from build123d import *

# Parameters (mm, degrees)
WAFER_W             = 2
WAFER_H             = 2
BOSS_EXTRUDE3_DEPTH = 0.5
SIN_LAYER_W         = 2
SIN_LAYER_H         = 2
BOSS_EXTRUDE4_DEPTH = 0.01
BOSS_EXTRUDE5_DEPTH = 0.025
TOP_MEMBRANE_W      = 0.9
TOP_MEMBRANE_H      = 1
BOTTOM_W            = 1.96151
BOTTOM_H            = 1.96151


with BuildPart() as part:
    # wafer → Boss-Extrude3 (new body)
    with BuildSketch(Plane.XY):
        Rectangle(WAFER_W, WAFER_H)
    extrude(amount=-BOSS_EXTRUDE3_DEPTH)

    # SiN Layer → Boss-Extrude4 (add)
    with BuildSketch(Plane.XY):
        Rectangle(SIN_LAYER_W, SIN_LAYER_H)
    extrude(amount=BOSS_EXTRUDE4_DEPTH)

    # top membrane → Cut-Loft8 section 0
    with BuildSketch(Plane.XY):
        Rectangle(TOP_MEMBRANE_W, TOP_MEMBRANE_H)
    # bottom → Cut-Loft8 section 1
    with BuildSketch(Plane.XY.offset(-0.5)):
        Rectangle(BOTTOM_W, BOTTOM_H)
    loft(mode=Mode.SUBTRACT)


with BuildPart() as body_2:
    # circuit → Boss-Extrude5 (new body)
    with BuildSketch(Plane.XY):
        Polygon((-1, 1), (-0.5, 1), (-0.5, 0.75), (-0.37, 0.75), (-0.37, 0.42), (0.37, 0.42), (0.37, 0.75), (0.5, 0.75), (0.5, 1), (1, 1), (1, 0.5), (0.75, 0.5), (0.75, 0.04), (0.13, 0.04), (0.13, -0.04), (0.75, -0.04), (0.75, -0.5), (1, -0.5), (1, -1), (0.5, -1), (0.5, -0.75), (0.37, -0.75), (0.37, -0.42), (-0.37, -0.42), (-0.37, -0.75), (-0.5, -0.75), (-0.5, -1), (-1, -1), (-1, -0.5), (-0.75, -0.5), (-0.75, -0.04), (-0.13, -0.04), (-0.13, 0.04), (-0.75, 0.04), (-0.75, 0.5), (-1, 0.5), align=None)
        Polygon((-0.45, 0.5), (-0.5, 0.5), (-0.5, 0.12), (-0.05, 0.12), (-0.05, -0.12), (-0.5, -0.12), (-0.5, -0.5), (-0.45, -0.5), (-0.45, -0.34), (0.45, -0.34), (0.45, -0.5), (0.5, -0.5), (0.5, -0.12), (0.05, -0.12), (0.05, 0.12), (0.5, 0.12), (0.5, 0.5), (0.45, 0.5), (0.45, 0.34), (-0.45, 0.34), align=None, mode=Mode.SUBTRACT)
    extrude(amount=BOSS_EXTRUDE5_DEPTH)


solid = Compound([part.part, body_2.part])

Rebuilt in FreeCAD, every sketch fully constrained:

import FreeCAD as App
import Part
import Sketcher

V = App.Vector
Q = App.Units.Quantity


def add_polygon(sketch, points):
    """Adds a closed chain of lines whose ends are joined by coincident constraints."""
    first, n = sketch.GeometryCount, len(points)
    for a, b in zip(points, points[1:] + points[:1]):
        sketch.addGeometry(Part.LineSegment(App.Vector(*a, 0), App.Vector(*b, 0)), False)
    for i in range(n):
        sketch.addConstraint(Sketcher.Constraint("Coincident", first + i, 2, first + (i + 1) % n, 1))

doc = App.newDocument("Part")
body = doc.addObject("PartDesign::Body", "Body")

# Sketch on XY plane
sketch1 = body.newObject("Sketcher::SketchObject", "Sketch")
sketch1.AttachmentSupport = (doc.getObject("XY_Plane"), [""])
sketch1.MapMode = "FlatFace"
add_polygon(sketch1, [(-1, 1), (-1, -1), (1, -1), (1, 1)])  # lines 0-3
sketch1.addConstraint(Sketcher.Constraint("Vertical", 0))
sketch1.addConstraint(Sketcher.Constraint("Horizontal", 1))
sketch1.addConstraint(Sketcher.Constraint("Vertical", 2))
sketch1.addConstraint(Sketcher.Constraint("Horizontal", 3))
sketch1.addConstraint(Sketcher.Constraint("Symmetric", 0, 2, 2, 2, -1, 1))
sketch1.addConstraint(Sketcher.Constraint("Equal", 3, 0))
sketch1.addConstraint(Sketcher.Constraint("DistanceX", 1, 1, 1, 2, Q("2 mm")))
pad1 = body.newObject("PartDesign::Pad", "Pad")
pad1.Profile = sketch1
pad1.Length = 0.5
pad1.Reversed = True

# Sketch on XY plane
sketch2 = body.newObject("Sketcher::SketchObject", "Sketch001")
sketch2.AttachmentSupport = (doc.getObject("XY_Plane"), [""])
sketch2.MapMode = "FlatFace"
add_polygon(sketch2, [(-1, 1), (-1, -1), (1, -1), (1, 1)])  # lines 0-3
sketch2.addConstraint(Sketcher.Constraint("Vertical", 0))
sketch2.addConstraint(Sketcher.Constraint("Horizontal", 1))
sketch2.addConstraint(Sketcher.Constraint("Vertical", 2))
sketch2.addConstraint(Sketcher.Constraint("Horizontal", 3))
sketch2.addConstraint(Sketcher.Constraint("Symmetric", 0, 2, 2, 2, -1, 1))
sketch2.addConstraint(Sketcher.Constraint("Equal", 3, 0))
sketch2.addConstraint(Sketcher.Constraint("DistanceX", 1, 1, 1, 2, Q("2 mm")))
pad2 = body.newObject("PartDesign::Pad", "Pad001")
pad2.Profile = sketch2
pad2.Length = 0.01

# Sketch on XY plane
sketch3 = body.newObject("Sketcher::SketchObject", "Sketch002")
sketch3.AttachmentSupport = (doc.getObject("XY_Plane"), [""])
sketch3.MapMode = "FlatFace"
add_polygon(sketch3, [(-0.5, 0.5), (-0.5, -0.5), (0.5, -0.5), (0.5, 0.5)])  # lines 0-3
sketch3.addConstraint(Sketcher.Constraint("Vertical", 0))
sketch3.addConstraint(Sketcher.Constraint("Horizontal", 1))
sketch3.addConstraint(Sketcher.Constraint("Vertical", 2))
sketch3.addConstraint(Sketcher.Constraint("Horizontal", 3))
sketch3.addConstraint(Sketcher.Constraint("Symmetric", 0, 2, 2, 2, -1, 1))
sketch3.addConstraint(Sketcher.Constraint("DistanceY", 0, 2, 0, 1, Q("1 mm")))
sketch3.addConstraint(Sketcher.Constraint("DistanceX", 1, 1, 1, 2, Q("0.9 mm")))

# Sketch on XY plane
sketch4 = body.newObject("Sketcher::SketchObject", "Sketch003")
sketch4.AttachmentSupport = (doc.getObject("XY_Plane"), [""])
sketch4.MapMode = "FlatFace"
sketch4.AttachmentOffset = App.Placement(V(0, 0, -0.5), App.Rotation())
add_polygon(sketch4, [(-1, 1), (-1, -1), (1, -1), (1, 1)])  # lines 0-3
sketch4.addConstraint(Sketcher.Constraint("Vertical", 0))
sketch4.addConstraint(Sketcher.Constraint("Horizontal", 1))
sketch4.addConstraint(Sketcher.Constraint("Vertical", 2))
sketch4.addConstraint(Sketcher.Constraint("Horizontal", 3))
sketch4.addConstraint(Sketcher.Constraint("Symmetric", 0, 2, 2, 2, -1, 1))
sketch4.addConstraint(Sketcher.Constraint("Equal", 3, 0))
sketch4.addConstraint(Sketcher.Constraint("DistanceX", 1, 1, 1, 2, Q("1.96151 mm")))

subtractiveloft = body.newObject("PartDesign::SubtractiveLoft", "SubtractiveLoft")
subtractiveloft.Profile = sketch3
subtractiveloft.Sections = [sketch4]
body2 = doc.addObject("PartDesign::Body", "Body001")

# Sketch on XY plane
sketch5 = body2.newObject("Sketcher::SketchObject", "Sketch004")
sketch5.AttachmentSupport = (doc.getObject("XY_Plane001"), [""])
sketch5.MapMode = "FlatFace"
add_polygon(sketch5, [(-0.5, 1), (-1, 1), (-1, 0.5), (-0.75, 0.5), (-0.75, 0.04), (-0.13, 0.04), (-0.13, -0.04), (-0.75, -0.04), (-0.75, -0.5), (-1, -0.5), (-1, -1), (-0.5, -1), (-0.5, -0.75), (-0.37, -0.75), (-0.37, -0.42), (0.37, -0.42), (0.37, -0.75), (0.5, -0.75), (0.5, -1), (1, -1), (1, -0.5), (0.75, -0.5), (0.75, -0.04), (0.13, -0.04), (0.13, 0.04), (0.75, 0.04), (0.75, 0.5), (1, 0.5), (1, 1), (0.5, 1), (0.5, 0.75), (0.37, 0.75), (0.37, 0.42), (-0.37, 0.42), (-0.37, 0.75), (-0.5, 0.75)])  # lines 0-35
add_polygon(sketch5, [(-0.45, 0.5), (-0.45, 0.34), (0.45, 0.34), (0.45, 0.5), (0.5, 0.5), (0.5, 0.12), (0.05, 0.12), (0.05, -0.12), (0.5, -0.12), (0.5, -0.5), (0.45, -0.5), (0.45, -0.34), (-0.45, -0.34), (-0.45, -0.5), (-0.5, -0.5), (-0.5, -0.12), (-0.05, -0.12), (-0.05, 0.12), (-0.5, 0.12), (-0.5, 0.5)])  # lines 36-55
sketch5.addConstraint(Sketcher.Constraint("Horizontal", 0))
sketch5.addConstraint(Sketcher.Constraint("Vertical", 1))
sketch5.addConstraint(Sketcher.Constraint("Horizontal", 2))
sketch5.addConstraint(Sketcher.Constraint("Vertical", 3))
sketch5.addConstraint(Sketcher.Constraint("Horizontal", 4))
sketch5.addConstraint(Sketcher.Constraint("Vertical", 5))
sketch5.addConstraint(Sketcher.Constraint("Horizontal", 6))
sketch5.addConstraint(Sketcher.Constraint("Vertical", 7))
sketch5.addConstraint(Sketcher.Constraint("Horizontal", 8))
sketch5.addConstraint(Sketcher.Constraint("Vertical", 9))
sketch5.addConstraint(Sketcher.Constraint("Horizontal", 10))
sketch5.addConstraint(Sketcher.Constraint("Vertical", 11))
sketch5.addConstraint(Sketcher.Constraint("Horizontal", 12))
sketch5.addConstraint(Sketcher.Constraint("Vertical", 13))
sketch5.addConstraint(Sketcher.Constraint("Horizontal", 14))
sketch5.addConstraint(Sketcher.Constraint("Vertical", 15))
sketch5.addConstraint(Sketcher.Constraint("Horizontal", 16))
sketch5.addConstraint(Sketcher.Constraint("Vertical", 17))
sketch5.addConstraint(Sketcher.Constraint("Horizontal", 18))
sketch5.addConstraint(Sketcher.Constraint("Vertical", 19))
sketch5.addConstraint(Sketcher.Constraint("Horizontal", 20))
sketch5.addConstraint(Sketcher.Constraint("Vertical", 21))
sketch5.addConstraint(Sketcher.Constraint("Horizontal", 22))
sketch5.addConstraint(Sketcher.Constraint("Vertical", 23))
sketch5.addConstraint(Sketcher.Constraint("Horizontal", 24))
sketch5.addConstraint(Sketcher.Constraint("Vertical", 25))
sketch5.addConstraint(Sketcher.Constraint("Horizontal", 26))
sketch5.addConstraint(Sketcher.Constraint("Vertical", 27))
sketch5.addConstraint(Sketcher.Constraint("Horizontal", 28))
sketch5.addConstraint(Sketcher.Constraint("Vertical", 29))
sketch5.addConstraint(Sketcher.Constraint("Horizontal", 30))
sketch5.addConstraint(Sketcher.Constraint("Vertical", 31))
sketch5.addConstraint(Sketcher.Constraint("Horizontal", 32))
sketch5.addConstraint(Sketcher.Constraint("Vertical", 33))
sketch5.addConstraint(Sketcher.Constraint("Horizontal", 34))
sketch5.addConstraint(Sketcher.Constraint("Vertical", 35))
sketch5.addConstraint(Sketcher.Constraint("Vertical", 36))
sketch5.addConstraint(Sketcher.Constraint("Horizontal", 37))
sketch5.addConstraint(Sketcher.Constraint("Vertical", 38))
sketch5.addConstraint(Sketcher.Constraint("Horizontal", 39))
sketch5.addConstraint(Sketcher.Constraint("Vertical", 40))
sketch5.addConstraint(Sketcher.Constraint("Horizontal", 41))
sketch5.addConstraint(Sketcher.Constraint("Vertical", 42))
sketch5.addConstraint(Sketcher.Constraint("Horizontal", 43))
sketch5.addConstraint(Sketcher.Constraint("Vertical", 44))
sketch5.addConstraint(Sketcher.Constraint("Horizontal", 45))
sketch5.addConstraint(Sketcher.Constraint("Vertical", 46))
sketch5.addConstraint(Sketcher.Constraint("Horizontal", 47))
sketch5.addConstraint(Sketcher.Constraint("Vertical", 48))
sketch5.addConstraint(Sketcher.Constraint("Horizontal", 49))
sketch5.addConstraint(Sketcher.Constraint("Vertical", 50))
sketch5.addConstraint(Sketcher.Constraint("Horizontal", 51))
sketch5.addConstraint(Sketcher.Constraint("Vertical", 52))
sketch5.addConstraint(Sketcher.Constraint("Horizontal", 53))
sketch5.addConstraint(Sketcher.Constraint("Vertical", 54))
sketch5.addConstraint(Sketcher.Constraint("Horizontal", 55))
sketch5.addConstraint(Sketcher.Constraint("Symmetric", 0, 2, 18, 2, -1, 1))
sketch5.addConstraint(Sketcher.Constraint("Symmetric", 2, 2, 20, 2, -1, 1))
sketch5.addConstraint(Sketcher.Constraint("Symmetric", 4, 2, 22, 2, -1, 1))
sketch5.addConstraint(Sketcher.Constraint("Symmetric", 6, 2, 24, 2, -1, 1))
sketch5.addConstraint(Sketcher.Constraint("Symmetric", 8, 2, 26, 2, -1, 1))
sketch5.addConstraint(Sketcher.Constraint("Symmetric", 10, 2, 28, 2, -1, 1))
sketch5.addConstraint(Sketcher.Constraint("Symmetric", 12, 2, 30, 2, -1, 1))
sketch5.addConstraint(Sketcher.Constraint("Symmetric", 14, 2, 32, 2, -1, 1))
sketch5.addConstraint(Sketcher.Constraint("Symmetric", 16, 2, 34, 2, -1, 1))
sketch5.addConstraint(Sketcher.Constraint("Symmetric", 36, 2, 46, 2, -1, 1))
sketch5.addConstraint(Sketcher.Constraint("Symmetric", 38, 2, 48, 2, -1, 1))
sketch5.addConstraint(Sketcher.Constraint("Symmetric", 40, 2, 50, 2, -1, 1))
sketch5.addConstraint(Sketcher.Constraint("Symmetric", 42, 2, 52, 2, -1, 1))
sketch5.addConstraint(Sketcher.Constraint("Symmetric", 44, 2, 54, 2, -1, 1))
sketch5.addConstraint(Sketcher.Constraint("Symmetric", 12, 2, 15, 2, -2))
sketch5.addConstraint(Sketcher.Constraint("Symmetric", 10, 2, 17, 2, -2))
sketch5.addConstraint(Sketcher.Constraint("Symmetric", 8, 2, 19, 2, -2))
sketch5.addConstraint(Sketcher.Constraint("Symmetric", 6, 2, 21, 2, -2))
sketch5.addConstraint(Sketcher.Constraint("Symmetric", 45, 2, 48, 2, -2))
sketch5.addConstraint(Sketcher.Constraint("Symmetric", 43, 2, 50, 2, -2))
sketch5.addConstraint(Sketcher.Constraint("Horizontal", 26, 2, 38, 2))
sketch5.addConstraint(Sketcher.Constraint("Vertical", 29, 2, 39, 2))
sketch5.addConstraint(Sketcher.Constraint("Equal", 28, 1))
sketch5.addConstraint(Sketcher.Constraint("Equal", 26, 11))
sketch5.addConstraint(Sketcher.Constraint("DistanceX", 0, 2, 0, 1, Q("0.5 mm")))
sketch5.addConstraint(Sketcher.Constraint("DistanceX", 37, 1, 37, 2, Q("0.9 mm")))
sketch5.addConstraint(Sketcher.Constraint("DistanceX", 0, 2, -1, 1, Q("1 mm")))
sketch5.addConstraint(Sketcher.Constraint("DistanceY", -1, 1, 0, 2, Q("1 mm")))
sketch5.addConstraint(Sketcher.Constraint("DistanceX", 2, 1, 2, 2, Q("0.25 mm")))
sketch5.addConstraint(Sketcher.Constraint("DistanceX", 4, 1, 4, 2, Q("0.62 mm")))
sketch5.addConstraint(Sketcher.Constraint("DistanceX", 12, 1, 12, 2, Q("0.13 mm")))
sketch5.addConstraint(Sketcher.Constraint("DistanceX", 41, 2, 41, 1, Q("0.45 mm")))
sketch5.addConstraint(Sketcher.Constraint("DistanceY", 3, 2, 3, 1, Q("0.46 mm")))
sketch5.addConstraint(Sketcher.Constraint("DistanceY", 13, 1, 13, 2, Q("0.33 mm")))
sketch5.addConstraint(Sketcher.Constraint("DistanceY", 36, 2, 36, 1, Q("0.16 mm")))
sketch5.addConstraint(Sketcher.Constraint("DistanceY", 40, 2, 40, 1, Q("0.38 mm")))
pad3 = body2.newObject("PartDesign::Pad", "Pad002")
pad3.Profile = sketch5
pad3.Length = 0.025

doc.recompute()
